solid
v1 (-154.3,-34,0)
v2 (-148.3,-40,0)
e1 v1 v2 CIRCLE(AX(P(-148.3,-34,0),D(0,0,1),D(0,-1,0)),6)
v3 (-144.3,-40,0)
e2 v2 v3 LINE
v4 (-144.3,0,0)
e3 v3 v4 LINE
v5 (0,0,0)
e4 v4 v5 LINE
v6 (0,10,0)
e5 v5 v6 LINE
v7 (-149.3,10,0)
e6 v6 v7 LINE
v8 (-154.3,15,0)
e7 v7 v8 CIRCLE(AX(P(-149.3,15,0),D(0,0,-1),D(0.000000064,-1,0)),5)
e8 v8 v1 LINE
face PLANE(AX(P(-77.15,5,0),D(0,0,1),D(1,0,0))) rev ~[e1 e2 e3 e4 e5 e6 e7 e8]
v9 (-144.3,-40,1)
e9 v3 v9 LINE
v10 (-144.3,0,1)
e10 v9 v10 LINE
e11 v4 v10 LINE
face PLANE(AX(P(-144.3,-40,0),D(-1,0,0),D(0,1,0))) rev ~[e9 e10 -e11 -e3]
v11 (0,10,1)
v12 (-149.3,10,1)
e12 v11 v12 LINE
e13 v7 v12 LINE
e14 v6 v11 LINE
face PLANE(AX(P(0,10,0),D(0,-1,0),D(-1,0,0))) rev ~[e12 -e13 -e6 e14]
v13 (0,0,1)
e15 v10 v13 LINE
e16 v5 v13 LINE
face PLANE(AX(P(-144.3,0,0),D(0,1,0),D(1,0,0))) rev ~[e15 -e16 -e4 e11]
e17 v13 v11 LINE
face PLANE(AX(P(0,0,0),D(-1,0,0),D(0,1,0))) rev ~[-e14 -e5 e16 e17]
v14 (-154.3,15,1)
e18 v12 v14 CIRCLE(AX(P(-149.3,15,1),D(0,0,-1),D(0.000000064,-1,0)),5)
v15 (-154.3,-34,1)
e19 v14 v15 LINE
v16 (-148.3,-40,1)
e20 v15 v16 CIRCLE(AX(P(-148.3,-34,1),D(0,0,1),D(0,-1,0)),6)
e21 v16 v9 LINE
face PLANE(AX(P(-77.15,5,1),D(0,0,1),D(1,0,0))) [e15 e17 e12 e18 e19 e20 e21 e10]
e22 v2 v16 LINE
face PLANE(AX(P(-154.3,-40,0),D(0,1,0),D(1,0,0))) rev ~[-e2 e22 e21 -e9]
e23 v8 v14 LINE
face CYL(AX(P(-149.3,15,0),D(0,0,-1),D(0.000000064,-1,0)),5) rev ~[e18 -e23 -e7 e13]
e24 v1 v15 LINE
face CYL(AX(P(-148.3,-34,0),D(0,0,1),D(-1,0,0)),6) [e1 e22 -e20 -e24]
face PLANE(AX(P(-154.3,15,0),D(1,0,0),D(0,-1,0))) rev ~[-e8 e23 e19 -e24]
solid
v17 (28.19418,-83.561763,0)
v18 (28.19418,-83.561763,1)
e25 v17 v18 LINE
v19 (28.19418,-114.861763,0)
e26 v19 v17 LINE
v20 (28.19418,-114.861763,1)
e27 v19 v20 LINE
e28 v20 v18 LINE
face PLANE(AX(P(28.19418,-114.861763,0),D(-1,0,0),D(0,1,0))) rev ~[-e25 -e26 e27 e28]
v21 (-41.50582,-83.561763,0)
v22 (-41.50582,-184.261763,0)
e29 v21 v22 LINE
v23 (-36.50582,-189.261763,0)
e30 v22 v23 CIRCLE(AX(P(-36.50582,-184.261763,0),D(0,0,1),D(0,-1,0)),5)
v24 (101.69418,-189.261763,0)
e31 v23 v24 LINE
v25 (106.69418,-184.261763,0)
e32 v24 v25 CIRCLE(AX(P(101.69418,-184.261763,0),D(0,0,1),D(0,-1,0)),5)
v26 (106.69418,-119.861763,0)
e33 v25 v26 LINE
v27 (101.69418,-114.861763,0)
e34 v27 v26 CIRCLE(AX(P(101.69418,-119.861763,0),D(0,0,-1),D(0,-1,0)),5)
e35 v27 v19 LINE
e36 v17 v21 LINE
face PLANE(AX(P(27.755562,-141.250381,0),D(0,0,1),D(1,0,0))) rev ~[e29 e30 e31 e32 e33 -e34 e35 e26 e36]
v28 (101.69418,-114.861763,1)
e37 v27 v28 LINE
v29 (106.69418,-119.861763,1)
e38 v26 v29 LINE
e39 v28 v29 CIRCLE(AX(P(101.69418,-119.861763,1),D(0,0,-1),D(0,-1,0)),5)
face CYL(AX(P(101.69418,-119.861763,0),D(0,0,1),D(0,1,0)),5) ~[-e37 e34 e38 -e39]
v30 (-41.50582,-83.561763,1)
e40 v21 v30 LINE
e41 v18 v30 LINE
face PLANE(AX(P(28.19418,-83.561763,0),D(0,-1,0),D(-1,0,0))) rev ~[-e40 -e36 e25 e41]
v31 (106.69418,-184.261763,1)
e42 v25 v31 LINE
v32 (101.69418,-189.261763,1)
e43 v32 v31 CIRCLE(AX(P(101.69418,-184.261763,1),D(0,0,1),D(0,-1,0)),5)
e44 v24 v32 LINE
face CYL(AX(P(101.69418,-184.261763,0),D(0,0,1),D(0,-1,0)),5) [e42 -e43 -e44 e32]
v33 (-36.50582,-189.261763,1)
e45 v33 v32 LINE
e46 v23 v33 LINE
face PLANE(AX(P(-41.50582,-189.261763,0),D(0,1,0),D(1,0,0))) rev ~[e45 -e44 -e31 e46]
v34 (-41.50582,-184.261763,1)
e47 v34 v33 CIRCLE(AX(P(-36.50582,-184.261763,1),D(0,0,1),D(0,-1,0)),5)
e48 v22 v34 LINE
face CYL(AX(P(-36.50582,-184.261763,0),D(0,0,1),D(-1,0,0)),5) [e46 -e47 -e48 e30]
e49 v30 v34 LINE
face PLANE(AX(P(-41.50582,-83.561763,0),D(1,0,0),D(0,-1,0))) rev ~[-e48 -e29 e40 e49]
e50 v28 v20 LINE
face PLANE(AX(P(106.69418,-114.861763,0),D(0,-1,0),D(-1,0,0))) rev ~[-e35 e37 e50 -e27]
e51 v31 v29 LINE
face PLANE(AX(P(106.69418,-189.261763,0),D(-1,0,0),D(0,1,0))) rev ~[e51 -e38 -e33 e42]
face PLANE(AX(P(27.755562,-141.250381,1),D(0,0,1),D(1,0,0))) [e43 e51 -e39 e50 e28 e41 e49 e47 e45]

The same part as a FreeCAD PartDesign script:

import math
import FreeCAD as App
import Part
import Sketcher

V = App.Vector


def edges_at(feature, points):
    """Names of the edges that pass closest to the given points."""
    edges = feature.Shape.Edges
    near = lambda p: min(range(len(edges)), key=lambda i: edges[i].distToShape(Part.Vertex(*p))[0])
    return sorted({f"Edge{near(p) + 1}" for p in points})

doc = App.newDocument("Part")
body = doc.addObject("PartDesign::Body", "Body")

# Sketch on XY plane
sketch1 = doc.addObject("Sketcher::SketchObject", "Sketch")
body.addObject(sketch1)
sketch1.AttachmentSupport = (doc.XY_Plane, [""])
sketch1.MapMode = "FlatFace"
sketch1.addGeometry([
    Part.LineSegment(V(-144.3, 0, 0), V(0, 0, 0)),  # 0
    Part.LineSegment(V(0, 0, 0), V(0, 10, 0)),  # 1
    Part.LineSegment(V(0, 10, 0), V(-149.3, 10, 0)),  # 2
    Part.ArcOfCircle(Part.Circle(V(-149.3, 15, 0), V(0, 0, 1), 5), math.radians(180), math.radians(270)),  # 3
    Part.LineSegment(V(-154.3, 15, 0), V(-154.3, -40, 0)),  # 4
    Part.LineSegment(V(-154.3, -40, 0), V(-144.3, -40, 0)),  # 5
    Part.LineSegment(V(-144.3, -40, 0), V(-144.3, 0, 0)),  # 6
], False)
sketch1.addConstraint([
    Sketcher.Constraint("Coincident", 0, 2, 1, 1),
    Sketcher.Constraint("Coincident", 1, 2, 2, 1),
    Sketcher.Constraint("Tangent", 2, 2, 3, 2),
    Sketcher.Constraint("Tangent", 3, 1, 4, 1),
    Sketcher.Constraint("Coincident", 4, 2, 5, 1),
    Sketcher.Constraint("Coincident", 5, 2, 6, 1),
    Sketcher.Constraint("Coincident", 6, 2, 0, 1),
    Sketcher.Constraint("Horizontal", 0),
    Sketcher.Constraint("Vertical", 1),
    Sketcher.Constraint("Horizontal", 2),
    Sketcher.Constraint("Vertical", 4),
    Sketcher.Constraint("Horizontal", 5),
    Sketcher.Constraint("Vertical", 6),
    Sketcher.Constraint("Coincident", 0, 2, -1, 1),
    Sketcher.Constraint("Equal", 5, 1),
    Sketcher.Constraint("Radius", 3, 5.0),
    Sketcher.Constraint("DistanceX", 5, 1, 5, 2, 10.0),
    Sketcher.Constraint("DistanceY", 4, 2, 4, 1, 55.0),
    Sketcher.Constraint("DistanceX", 0, 1, 0, 2, 144.3),
])
pad1 = doc.addObject("PartDesign::Pad", "Pad")
body.addObject(pad1)
pad1.Profile = sketch1
pad1.Length = 1
doc.recompute()

fillet = doc.addObject("PartDesign::Fillet", "Fillet")
body.addObject(fillet)
fillet.Base = (pad1, edges_at(pad1, [(-154.3, -40, 0.5)]))
fillet.Radius = 6
body2 = doc.addObject("PartDesign::Body", "Body001")

# Sketch on XY plane
sketch2 = doc.addObject("Sketcher::SketchObject", "Sketch001")
body2.addObject(sketch2)
sketch2.AttachmentSupport = (doc.getObject("XY_Plane001"), [""])
sketch2.MapMode = "FlatFace"
sketch2.addGeometry([
    Part.LineSegment(V(107, -115, 0), V(28, -115, 0)),  # 0
    Part.LineSegment(V(28, -115, 0), V(28, -84, 0)),  # 1
    Part.LineSegment(V(28, -84, 0), V(-42, -84, 0)),  # 2
    Part.LineSegment(V(-42, -84, 0), V(-42, -189, 0)),  # 3
    Part.LineSegment(V(-42, -189, 0), V(107, -189, 0)),  # 4
    Part.LineSegment(V(107, -189, 0), V(107, -115, 0)),  # 5
], False)
sketch2.addConstraint([
    Sketcher.Constraint("Coincident", 0, 2, 1, 1),
    Sketcher.Constraint("Coincident", 1, 2, 2, 1),
    Sketcher.Constraint("Coincident", 2, 2, 3, 1),
    Sketcher.Constraint("Coincident", 3, 2, 4, 1),
    Sketcher.Constraint("Coincident", 4, 2, 5, 1),
    Sketcher.Constraint("Coincident", 5, 2, 0, 1),
    Sketcher.Constraint("Horizontal", 0),
    Sketcher.Constraint("Vertical", 1),
    Sketcher.Constraint("Horizontal", 2),
    Sketcher.Constraint("Vertical", 3),
    Sketcher.Constraint("Horizontal", 4),
    Sketcher.Constraint("Vertical", 5),
    Sketcher.Constraint("DistanceX", 0, 2, 0, 1, 78.5),
    Sketcher.Constraint("DistanceX", 2, 2, 2, 1, 69.7),
    Sketcher.Constraint("DistanceY", 1, 1, 1, 2, 31.3),
    Sketcher.Constraint("DistanceY", 3, 2, 3, 1, 105.7),
    Sketcher.Constraint("DistanceX", -1, 1, 0, 2, 28.19418),
    Sketcher.Constraint("DistanceY", 0, 2, -1, 1, 114.861763),
])
pad2 = doc.addObject("PartDesign::Pad", "Pad001")
body2.addObject(pad2)
pad2.Profile = sketch2
pad2.Length = 1
doc.recompute()

fillet2 = doc.addObject("PartDesign::Fillet", "Fillet001")
body2.addObject(fillet2)
fillet2.Base = (pad2, edges_at(pad2, [(-41.506, -189.262, 0.5), (106.694, -189.262, 0.5), (106.694, -114.862, 0.5)]))
fillet2.Radius = 5

doc.recompute()
